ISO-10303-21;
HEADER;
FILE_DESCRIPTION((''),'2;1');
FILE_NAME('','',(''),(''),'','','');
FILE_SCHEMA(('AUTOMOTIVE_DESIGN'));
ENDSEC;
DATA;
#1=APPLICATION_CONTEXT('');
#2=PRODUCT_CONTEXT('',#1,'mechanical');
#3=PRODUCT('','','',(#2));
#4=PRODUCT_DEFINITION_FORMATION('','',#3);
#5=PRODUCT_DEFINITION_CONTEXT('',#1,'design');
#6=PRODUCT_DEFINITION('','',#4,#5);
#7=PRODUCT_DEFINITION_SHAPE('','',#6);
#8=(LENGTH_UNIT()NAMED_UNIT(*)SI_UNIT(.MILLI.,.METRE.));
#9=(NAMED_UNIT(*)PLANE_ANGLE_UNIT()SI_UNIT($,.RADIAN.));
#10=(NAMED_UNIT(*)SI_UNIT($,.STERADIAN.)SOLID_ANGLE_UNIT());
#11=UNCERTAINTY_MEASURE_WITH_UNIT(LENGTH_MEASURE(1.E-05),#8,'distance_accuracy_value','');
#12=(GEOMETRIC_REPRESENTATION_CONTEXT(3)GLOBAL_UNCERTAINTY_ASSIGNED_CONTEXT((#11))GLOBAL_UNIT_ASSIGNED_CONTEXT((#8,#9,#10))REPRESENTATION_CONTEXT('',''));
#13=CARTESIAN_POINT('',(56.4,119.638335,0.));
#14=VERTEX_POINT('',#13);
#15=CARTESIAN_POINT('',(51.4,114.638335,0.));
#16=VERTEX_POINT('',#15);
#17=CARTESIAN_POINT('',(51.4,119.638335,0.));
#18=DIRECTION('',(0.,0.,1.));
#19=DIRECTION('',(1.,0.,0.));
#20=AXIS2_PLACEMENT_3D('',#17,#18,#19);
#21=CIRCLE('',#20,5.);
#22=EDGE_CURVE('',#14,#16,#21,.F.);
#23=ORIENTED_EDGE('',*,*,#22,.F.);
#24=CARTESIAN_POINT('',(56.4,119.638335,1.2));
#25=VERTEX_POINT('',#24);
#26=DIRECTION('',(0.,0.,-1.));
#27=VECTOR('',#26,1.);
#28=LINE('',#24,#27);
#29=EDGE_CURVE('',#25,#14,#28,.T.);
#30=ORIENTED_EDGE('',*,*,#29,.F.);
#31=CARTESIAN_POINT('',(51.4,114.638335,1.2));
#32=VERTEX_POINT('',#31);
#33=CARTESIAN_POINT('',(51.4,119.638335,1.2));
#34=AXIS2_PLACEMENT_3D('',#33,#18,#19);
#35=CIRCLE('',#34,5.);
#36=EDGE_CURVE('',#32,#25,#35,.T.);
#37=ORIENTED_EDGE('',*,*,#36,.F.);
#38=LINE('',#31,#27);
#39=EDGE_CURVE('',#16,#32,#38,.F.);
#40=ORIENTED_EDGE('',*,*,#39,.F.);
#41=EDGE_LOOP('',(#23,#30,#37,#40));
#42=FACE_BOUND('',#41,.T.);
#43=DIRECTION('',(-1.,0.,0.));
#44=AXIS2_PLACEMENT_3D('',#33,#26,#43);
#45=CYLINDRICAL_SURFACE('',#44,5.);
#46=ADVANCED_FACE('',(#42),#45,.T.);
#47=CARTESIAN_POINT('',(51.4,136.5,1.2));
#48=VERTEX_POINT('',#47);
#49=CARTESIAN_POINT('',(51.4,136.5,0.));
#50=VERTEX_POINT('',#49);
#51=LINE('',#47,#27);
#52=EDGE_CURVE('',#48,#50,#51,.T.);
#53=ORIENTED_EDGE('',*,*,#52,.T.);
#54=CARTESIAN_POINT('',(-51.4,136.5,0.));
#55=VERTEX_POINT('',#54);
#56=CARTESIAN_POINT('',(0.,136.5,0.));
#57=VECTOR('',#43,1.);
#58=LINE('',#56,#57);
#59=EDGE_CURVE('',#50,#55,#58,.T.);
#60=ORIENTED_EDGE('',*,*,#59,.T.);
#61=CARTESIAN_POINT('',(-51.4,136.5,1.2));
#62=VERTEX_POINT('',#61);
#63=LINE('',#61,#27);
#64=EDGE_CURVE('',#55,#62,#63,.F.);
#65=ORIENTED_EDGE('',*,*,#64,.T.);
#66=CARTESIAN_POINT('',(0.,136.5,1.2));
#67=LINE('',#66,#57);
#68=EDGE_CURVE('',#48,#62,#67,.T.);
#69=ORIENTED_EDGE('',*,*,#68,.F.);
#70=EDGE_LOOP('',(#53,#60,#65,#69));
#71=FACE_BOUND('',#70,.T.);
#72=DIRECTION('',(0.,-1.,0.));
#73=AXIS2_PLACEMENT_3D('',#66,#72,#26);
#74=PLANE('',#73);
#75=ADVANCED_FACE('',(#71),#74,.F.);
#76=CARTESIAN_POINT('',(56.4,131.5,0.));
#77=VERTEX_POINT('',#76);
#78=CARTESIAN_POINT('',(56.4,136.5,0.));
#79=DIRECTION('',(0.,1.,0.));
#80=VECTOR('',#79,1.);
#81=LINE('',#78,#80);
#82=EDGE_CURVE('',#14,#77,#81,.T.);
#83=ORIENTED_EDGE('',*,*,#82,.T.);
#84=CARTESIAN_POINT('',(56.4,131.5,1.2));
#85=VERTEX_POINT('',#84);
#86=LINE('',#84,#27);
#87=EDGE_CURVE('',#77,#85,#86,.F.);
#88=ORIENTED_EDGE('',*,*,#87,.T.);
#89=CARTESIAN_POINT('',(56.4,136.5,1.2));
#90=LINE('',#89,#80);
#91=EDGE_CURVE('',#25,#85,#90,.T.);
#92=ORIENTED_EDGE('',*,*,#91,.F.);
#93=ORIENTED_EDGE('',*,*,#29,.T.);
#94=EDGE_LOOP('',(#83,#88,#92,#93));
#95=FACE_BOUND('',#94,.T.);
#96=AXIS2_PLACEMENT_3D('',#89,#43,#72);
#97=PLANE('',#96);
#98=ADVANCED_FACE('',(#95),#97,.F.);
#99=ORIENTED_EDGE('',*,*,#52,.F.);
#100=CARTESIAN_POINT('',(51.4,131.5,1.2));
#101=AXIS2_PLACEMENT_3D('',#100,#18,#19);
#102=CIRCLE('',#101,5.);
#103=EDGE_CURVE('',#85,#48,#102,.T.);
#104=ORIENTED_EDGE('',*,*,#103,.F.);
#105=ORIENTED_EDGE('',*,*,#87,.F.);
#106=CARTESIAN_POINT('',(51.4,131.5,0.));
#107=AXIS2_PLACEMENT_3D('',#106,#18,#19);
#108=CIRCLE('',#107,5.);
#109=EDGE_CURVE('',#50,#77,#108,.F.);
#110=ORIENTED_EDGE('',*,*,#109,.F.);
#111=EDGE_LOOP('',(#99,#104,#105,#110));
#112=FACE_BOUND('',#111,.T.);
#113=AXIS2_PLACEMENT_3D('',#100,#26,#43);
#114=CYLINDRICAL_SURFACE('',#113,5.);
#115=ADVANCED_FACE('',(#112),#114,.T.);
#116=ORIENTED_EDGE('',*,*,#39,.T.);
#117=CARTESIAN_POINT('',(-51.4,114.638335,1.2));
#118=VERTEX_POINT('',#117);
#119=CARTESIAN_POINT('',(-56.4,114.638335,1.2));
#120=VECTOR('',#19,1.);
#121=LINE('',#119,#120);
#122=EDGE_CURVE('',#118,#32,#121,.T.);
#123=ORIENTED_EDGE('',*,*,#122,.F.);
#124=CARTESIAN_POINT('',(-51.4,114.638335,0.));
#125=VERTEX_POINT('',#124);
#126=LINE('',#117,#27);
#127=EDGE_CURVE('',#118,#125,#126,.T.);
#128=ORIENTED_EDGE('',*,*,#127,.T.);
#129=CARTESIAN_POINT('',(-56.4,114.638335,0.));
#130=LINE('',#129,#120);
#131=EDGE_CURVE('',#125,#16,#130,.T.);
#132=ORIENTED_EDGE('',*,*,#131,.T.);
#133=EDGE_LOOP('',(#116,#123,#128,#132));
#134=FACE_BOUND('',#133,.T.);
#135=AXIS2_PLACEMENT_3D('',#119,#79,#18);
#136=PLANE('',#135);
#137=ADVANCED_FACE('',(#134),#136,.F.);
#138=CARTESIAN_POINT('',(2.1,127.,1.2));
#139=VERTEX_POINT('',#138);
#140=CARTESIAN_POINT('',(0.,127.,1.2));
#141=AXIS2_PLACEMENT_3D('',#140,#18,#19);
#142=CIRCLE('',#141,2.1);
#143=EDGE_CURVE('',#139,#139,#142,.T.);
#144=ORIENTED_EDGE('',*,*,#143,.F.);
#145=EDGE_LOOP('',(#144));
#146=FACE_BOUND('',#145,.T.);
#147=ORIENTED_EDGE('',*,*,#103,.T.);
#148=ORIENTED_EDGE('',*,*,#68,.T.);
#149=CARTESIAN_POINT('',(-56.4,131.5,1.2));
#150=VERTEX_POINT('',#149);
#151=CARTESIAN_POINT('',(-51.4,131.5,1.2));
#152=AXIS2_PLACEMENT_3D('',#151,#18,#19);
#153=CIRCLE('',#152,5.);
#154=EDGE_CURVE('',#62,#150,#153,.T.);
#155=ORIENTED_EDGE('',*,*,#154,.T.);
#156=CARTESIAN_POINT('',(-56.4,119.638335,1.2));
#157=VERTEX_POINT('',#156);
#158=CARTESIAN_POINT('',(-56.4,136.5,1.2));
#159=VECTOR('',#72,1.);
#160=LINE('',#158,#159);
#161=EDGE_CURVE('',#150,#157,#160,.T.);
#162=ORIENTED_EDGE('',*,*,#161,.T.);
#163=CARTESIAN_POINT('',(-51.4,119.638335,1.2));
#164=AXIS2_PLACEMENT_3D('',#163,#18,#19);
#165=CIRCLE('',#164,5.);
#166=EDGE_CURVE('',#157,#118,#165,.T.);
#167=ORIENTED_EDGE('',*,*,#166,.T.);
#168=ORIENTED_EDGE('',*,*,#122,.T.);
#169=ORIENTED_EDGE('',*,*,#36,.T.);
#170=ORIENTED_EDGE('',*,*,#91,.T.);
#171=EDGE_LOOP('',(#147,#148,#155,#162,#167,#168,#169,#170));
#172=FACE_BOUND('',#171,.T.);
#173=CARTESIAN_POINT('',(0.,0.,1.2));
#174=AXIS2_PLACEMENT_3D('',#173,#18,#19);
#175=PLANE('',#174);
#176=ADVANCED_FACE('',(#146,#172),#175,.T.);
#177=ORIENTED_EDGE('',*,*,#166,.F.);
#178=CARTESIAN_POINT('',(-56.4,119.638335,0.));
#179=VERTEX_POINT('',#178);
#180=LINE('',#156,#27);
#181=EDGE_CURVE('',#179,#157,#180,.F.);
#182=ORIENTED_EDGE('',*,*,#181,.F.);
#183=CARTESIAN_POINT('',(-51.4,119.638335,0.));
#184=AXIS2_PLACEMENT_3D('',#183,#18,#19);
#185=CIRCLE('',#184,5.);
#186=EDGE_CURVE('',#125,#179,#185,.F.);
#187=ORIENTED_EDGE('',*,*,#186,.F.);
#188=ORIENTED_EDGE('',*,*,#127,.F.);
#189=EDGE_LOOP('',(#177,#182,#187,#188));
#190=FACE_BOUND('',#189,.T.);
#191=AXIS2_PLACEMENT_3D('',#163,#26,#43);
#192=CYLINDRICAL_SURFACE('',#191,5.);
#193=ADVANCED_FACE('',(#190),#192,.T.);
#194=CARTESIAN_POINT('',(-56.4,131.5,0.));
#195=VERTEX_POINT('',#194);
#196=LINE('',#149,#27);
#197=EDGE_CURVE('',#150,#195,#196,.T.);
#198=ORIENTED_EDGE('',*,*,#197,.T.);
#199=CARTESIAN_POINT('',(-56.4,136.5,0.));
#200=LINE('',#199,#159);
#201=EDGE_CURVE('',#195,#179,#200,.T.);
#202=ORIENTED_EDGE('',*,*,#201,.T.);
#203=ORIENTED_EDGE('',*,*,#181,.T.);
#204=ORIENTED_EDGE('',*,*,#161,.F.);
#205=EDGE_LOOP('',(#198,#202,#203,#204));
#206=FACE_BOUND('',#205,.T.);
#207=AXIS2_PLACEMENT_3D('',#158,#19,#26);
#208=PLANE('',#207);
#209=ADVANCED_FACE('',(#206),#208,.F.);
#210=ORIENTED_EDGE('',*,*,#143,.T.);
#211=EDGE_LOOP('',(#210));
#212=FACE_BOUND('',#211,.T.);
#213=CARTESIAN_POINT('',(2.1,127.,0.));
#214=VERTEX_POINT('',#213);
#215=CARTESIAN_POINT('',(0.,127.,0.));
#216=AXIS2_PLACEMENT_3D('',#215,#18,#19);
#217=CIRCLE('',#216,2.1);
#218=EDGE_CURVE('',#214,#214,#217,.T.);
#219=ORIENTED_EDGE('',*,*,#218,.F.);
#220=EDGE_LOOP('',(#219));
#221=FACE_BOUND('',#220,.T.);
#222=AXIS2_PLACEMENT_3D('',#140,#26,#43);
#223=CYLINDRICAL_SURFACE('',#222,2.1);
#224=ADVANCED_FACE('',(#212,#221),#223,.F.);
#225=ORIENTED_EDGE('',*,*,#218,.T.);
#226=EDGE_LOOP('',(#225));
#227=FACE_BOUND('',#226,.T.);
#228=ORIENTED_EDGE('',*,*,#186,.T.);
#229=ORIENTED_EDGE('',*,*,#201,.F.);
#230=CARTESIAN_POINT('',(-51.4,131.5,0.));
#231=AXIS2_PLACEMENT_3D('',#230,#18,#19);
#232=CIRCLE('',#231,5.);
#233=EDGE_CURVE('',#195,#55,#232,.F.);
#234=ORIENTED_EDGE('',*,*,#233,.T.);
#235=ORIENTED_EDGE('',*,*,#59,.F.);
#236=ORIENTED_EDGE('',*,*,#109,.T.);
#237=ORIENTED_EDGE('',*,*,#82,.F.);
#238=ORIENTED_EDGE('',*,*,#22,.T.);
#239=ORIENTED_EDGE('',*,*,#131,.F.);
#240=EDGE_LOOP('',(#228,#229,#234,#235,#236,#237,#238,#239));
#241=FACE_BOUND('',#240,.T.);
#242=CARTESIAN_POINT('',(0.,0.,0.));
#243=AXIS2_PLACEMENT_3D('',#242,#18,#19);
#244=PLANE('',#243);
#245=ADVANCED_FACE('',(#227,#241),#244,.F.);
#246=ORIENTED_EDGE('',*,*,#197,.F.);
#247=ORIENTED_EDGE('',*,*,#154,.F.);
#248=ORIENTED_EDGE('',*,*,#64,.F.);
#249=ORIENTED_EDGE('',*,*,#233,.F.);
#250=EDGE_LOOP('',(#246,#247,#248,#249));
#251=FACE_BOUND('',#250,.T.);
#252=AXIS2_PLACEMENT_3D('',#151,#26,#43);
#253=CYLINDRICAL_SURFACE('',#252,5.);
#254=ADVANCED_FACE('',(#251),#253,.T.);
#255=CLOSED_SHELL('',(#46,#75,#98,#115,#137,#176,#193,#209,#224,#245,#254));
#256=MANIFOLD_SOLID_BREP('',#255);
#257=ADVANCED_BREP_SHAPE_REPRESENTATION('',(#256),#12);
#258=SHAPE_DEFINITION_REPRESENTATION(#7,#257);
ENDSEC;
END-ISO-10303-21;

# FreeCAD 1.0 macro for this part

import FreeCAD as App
import Part
import Sketcher
from FreeCAD import Vector


def edges_at(feature, points):
    """Names of the edges that pass closest to the given points."""
    edges = feature.Shape.Edges
    near = lambda p: min(range(len(edges)), key=lambda i: edges[i].distToShape(Part.Vertex(*p))[0])
    return sorted({f"Edge{near(p) + 1}" for p in points})


def add_polygon(sketch, points):
    """Adds a closed chain of lines whose ends are joined by coincident constraints."""
    first, n = sketch.GeometryCount, len(points)
    for a, b in zip(points, points[1:] + points[:1]):
        sketch.addGeometry(Part.LineSegment(App.Vector(*a, 0), App.Vector(*b, 0)), False)
    for i in range(n):
        sketch.addConstraint(Sketcher.Constraint("Coincident", first + i, 2, first + (i + 1) % n, 1))

doc = App.newDocument("Part")
body = doc.addObject("PartDesign::Body", "Body")

sketch1 = body.newObject("Sketcher::SketchObject", "Sketch")
sketch1.AttachmentSupport = (doc.getObject("XY_Plane"), [""])
sketch1.MapMode = "FlatFace"
add_polygon(sketch1, [(-56.4, 136.5), (-56.4, 114.638335), (56.4, 114.638335), (56.4, 136.5)])
sketch1.addGeometry(Part.Circle(Vector(0, 127, 0), Vector(0, 0, 1), 2.1), False)
sketch1.addConstraint(Sketcher.Constraint("Vertical", 0))
sketch1.addConstraint(Sketcher.Constraint("Horizontal", 1))
sketch1.addConstraint(Sketcher.Constraint("Vertical", 2))
sketch1.addConstraint(Sketcher.Constraint("Horizontal", 3))
sketch1.addConstraint(Sketcher.Constraint("PointOnObject", 4, 3, -2))
sketch1.addConstraint(Sketcher.Constraint("Diameter", 4, 4.2))
sketch1.addConstraint(Sketcher.Constraint("DistanceX", 1, 1, 1, 2, 112.8))
sketch1.addConstraint(Sketcher.Constraint("DistanceY", -1, 1, 4, 3, 127.0))
sketch1.addConstraint(Sketcher.Constraint("DistanceX", 0, 2, -1, 1, 56.4))
sketch1.addConstraint(Sketcher.Constraint("DistanceY", -1, 1, 2, 2, 136.5))
sketch1.addConstraint(Sketcher.Constraint("DistanceY", 0, 2, 0, 1, 21.861665))
pad1 = body.newObject("PartDesign::Pad", "Pad")
pad1.Profile = sketch1
pad1.Length = 1.2
doc.recompute()

fillet = body.newObject("PartDesign::Fillet", "Fillet")
fillet.Base = (pad1, edges_at(pad1, [
    (56.4, 114.638, 0.6),
    (-56.4, 114.638, 0.6),
    (-56.4, 136.5, 0.6),
    (56.4, 136.5, 0.6),
]))
fillet.Radius = 5

doc.recompute()
